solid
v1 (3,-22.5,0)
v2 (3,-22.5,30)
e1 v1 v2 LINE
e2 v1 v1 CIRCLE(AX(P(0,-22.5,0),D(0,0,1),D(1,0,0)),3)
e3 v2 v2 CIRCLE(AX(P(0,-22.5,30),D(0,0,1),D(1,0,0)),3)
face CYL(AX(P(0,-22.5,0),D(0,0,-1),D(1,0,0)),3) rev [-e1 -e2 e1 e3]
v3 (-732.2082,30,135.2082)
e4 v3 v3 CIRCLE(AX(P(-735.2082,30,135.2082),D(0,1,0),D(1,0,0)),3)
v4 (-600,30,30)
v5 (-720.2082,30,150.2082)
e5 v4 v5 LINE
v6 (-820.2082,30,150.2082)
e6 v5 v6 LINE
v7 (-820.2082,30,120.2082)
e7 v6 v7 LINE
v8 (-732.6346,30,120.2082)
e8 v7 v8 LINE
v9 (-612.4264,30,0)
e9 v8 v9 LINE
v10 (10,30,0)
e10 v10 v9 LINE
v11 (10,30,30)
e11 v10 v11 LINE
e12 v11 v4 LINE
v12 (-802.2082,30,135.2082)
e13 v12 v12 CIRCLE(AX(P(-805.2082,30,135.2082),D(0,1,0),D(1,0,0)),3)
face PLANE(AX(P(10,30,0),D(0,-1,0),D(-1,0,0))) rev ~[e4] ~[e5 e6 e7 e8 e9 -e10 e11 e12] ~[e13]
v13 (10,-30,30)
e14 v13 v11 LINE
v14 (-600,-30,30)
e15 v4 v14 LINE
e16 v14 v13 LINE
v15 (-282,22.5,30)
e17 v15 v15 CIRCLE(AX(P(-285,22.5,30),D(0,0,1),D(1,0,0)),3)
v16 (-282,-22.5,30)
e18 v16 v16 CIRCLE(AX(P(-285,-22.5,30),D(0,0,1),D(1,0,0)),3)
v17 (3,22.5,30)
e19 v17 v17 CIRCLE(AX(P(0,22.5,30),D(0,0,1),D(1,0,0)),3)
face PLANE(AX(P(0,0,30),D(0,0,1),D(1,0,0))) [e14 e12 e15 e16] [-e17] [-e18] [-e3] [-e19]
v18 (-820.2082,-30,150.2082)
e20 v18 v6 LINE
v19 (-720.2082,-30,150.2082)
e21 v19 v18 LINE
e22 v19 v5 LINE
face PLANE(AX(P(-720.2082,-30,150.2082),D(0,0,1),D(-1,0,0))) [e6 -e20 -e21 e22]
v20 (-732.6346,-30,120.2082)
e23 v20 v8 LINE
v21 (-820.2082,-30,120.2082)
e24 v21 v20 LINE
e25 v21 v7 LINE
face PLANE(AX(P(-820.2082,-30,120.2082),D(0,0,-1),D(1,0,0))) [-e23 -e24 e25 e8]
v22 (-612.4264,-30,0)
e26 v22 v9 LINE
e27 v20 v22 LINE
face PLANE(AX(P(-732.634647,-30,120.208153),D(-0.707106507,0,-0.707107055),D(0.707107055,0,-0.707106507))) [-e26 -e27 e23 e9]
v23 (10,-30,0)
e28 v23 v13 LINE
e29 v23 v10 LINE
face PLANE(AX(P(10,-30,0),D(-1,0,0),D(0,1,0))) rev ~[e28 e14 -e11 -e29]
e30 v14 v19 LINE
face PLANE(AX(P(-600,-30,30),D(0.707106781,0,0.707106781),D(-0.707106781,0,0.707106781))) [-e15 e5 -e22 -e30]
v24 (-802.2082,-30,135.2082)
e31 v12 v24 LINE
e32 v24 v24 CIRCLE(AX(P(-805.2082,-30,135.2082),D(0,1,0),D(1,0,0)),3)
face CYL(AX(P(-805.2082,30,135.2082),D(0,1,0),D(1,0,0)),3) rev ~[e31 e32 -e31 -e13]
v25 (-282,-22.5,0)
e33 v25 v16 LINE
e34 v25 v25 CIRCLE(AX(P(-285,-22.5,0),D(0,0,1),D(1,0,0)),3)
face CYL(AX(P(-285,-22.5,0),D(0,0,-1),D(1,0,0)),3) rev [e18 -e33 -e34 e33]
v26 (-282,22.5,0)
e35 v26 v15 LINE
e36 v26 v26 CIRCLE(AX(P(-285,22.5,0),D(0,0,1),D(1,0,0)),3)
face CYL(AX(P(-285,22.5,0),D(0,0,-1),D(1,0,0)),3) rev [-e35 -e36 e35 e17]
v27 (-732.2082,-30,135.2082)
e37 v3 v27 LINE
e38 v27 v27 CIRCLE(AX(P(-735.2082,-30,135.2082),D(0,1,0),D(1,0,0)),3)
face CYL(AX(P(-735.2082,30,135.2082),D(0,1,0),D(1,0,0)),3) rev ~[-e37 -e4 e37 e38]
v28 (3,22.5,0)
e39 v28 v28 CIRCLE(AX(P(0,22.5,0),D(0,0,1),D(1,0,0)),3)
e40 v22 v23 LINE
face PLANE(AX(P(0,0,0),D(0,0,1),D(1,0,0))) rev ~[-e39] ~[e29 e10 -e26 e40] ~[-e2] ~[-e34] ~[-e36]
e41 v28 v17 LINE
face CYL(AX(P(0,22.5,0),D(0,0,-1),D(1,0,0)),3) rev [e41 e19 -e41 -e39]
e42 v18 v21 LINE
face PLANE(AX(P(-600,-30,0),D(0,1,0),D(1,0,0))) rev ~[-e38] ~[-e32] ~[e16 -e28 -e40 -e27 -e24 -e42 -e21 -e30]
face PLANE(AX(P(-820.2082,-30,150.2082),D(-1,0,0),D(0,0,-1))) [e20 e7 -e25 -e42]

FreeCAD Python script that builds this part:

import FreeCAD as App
import Part
import Sketcher
from FreeCAD import Vector
Q = App.Units.Quantity


def add_polygon(sketch, points):
    """Adds a closed chain of lines whose ends are joined by coincident constraints."""
    first, n = sketch.GeometryCount, len(points)
    for a, b in zip(points, points[1:] + points[:1]):
        sketch.addGeometry(Part.LineSegment(App.Vector(*a, 0), App.Vector(*b, 0)), False)
    for i in range(n):
        sketch.addConstraint(Sketcher.Constraint("Coincident", first + i, 2, first + (i + 1) % n, 1))

doc = App.newDocument("Part")
body = doc.addObject("PartDesign::Body", "Body")

# Sketch on XY plane
sketch1 = doc.addObject("Sketcher::SketchObject", "Sketch")
body.addObject(sketch1)
sketch1.AttachmentSupport = (doc.XY_Plane, [""])
sketch1.MapMode = "FlatFace"
add_polygon(sketch1, [(10, -30), (10, 30), (-600, 30), (-600, -30)])  # lines 0-3
sketch1.addGeometry(Part.Circle(Vector(-285, -22.5, 0), Vector(0, 0, 1), 3), False)  # 4
sketch1.addGeometry(Part.Circle(Vector(0, -22.5, 0), Vector(0, 0, 1), 3), False)  # 5
sketch1.addGeometry(Part.Circle(Vector(-285, 22.5, 0), Vector(0, 0, 1), 3), False)  # 6
sketch1.addGeometry(Part.Circle(Vector(0, 22.5, 0), Vector(0, 0, 1), 3), False)  # 7
sketch1.addConstraint(Sketcher.Constraint("Vertical", 0))
sketch1.addConstraint(Sketcher.Constraint("Horizontal", 1))
sketch1.addConstraint(Sketcher.Constraint("Vertical", 2))
sketch1.addConstraint(Sketcher.Constraint("Horizontal", 3))
sketch1.addConstraint(Sketcher.Constraint("Equal", 4, 5))
sketch1.addConstraint(Sketcher.Constraint("Equal", 5, 6))
sketch1.addConstraint(Sketcher.Constraint("Equal", 6, 7))
sketch1.addConstraint(Sketcher.Constraint("Symmetric", 5, 3, 7, 3, -1, 1))
sketch1.addConstraint(Sketcher.Constraint("Symmetric", 4, 3, 6, 3, -1))
sketch1.addConstraint(Sketcher.Constraint("PointOnObject", 5, 3, -2))
sketch1.addConstraint(Sketcher.Constraint("Horizontal", 4, 3, 5, 3))
sketch1.addConstraint(Sketcher.Constraint("Diameter", 4, 6.0))
sketch1.addConstraint(Sketcher.Constraint("DistanceX", 1, 2, 1, 1, 610.0))
sketch1.addConstraint(Sketcher.Constraint("DistanceY", 0, 1, 0, 2, 60.0))
sketch1.addConstraint(Sketcher.Constraint("DistanceX", 4, 3, -1, 1, 285.0))
sketch1.addConstraint(Sketcher.Constraint("DistanceX", -1, 1, 0, 2, 10.0))
sketch1.addConstraint(Sketcher.Constraint("DistanceY", -1, 1, 0, 2, 30.0))
sketch1.addConstraint(Sketcher.Constraint("DistanceY", 4, 3, 6, 3, 45.0))
pad1 = doc.addObject("PartDesign::Pad", "Pad")
body.addObject(pad1)
pad1.Profile = sketch1
pad1.Length = 30

# Sketch on XZ plane
sketch2 = doc.addObject("Sketcher::SketchObject", "Sketch001")
body.addObject(sketch2)
sketch2.AttachmentSupport = (doc.XZ_Plane, [""])
sketch2.MapMode = "FlatFace"
sketch2.AttachmentOffset = App.Placement(Vector(0, 0, 30), App.Rotation())
add_polygon(sketch2, [(-600, 0), (-600, 30), (-720, 150), (-820, 150), (-820, 120), (-733, 120), (-612, 0)])  # lines 0-6
sketch2.addConstraint(Sketcher.Constraint("Vertical", 0))
sketch2.addConstraint(Sketcher.Constraint("Horizontal", 2))
sketch2.addConstraint(Sketcher.Constraint("Vertical", 3))
sketch2.addConstraint(Sketcher.Constraint("Horizontal", 4))
sketch2.addConstraint(Sketcher.Constraint("Horizontal", 6))
sketch2.addConstraint(Sketcher.Constraint("PointOnObject", 5, 2, -1))
sketch2.addConstraint(Sketcher.Constraint("Parallel", 1, 5))
sketch2.addConstraint(Sketcher.Constraint("Equal", 0, 3))
sketch2.addConstraint(Sketcher.Constraint("DistanceX", 2, 2, 2, 1, 100.0))
sketch2.addConstraint(Sketcher.Constraint("DistanceY", 0, 1, 0, 2, 30.0))
sketch2.addConstraint(Sketcher.Constraint("Angle", 1, Q("135 deg")))
sketch2.addConstraint(Sketcher.Constraint("Distance", 1, 170.0))
sketch2.addConstraint(Sketcher.Constraint("DistanceX", 0, 2, -1, 1, 600.0))
sketch2.addConstraint(Sketcher.Constraint("DistanceX", 4, 1, 4, 2, 87.5736))
pad2 = doc.addObject("PartDesign::Pad", "Pad001")
body.addObject(pad2)
pad2.Profile = sketch2
pad2.Length = 60
pad2.Reversed = True

# Sketch on XZ plane
sketch3 = doc.addObject("Sketcher::SketchObject", "Sketch002")
body.addObject(sketch3)
sketch3.AttachmentSupport = (doc.XZ_Plane, [""])
sketch3.MapMode = "FlatFace"
sketch3.AttachmentOffset = App.Placement(Vector(0, 0, -30), App.Rotation())
sketch3.addGeometry(Part.Circle(Vector(-805.2, 135.2, 0), Vector(0, 0, 1), 3), False)
sketch3.addGeometry(Part.Circle(Vector(-735.2, 135.2, 0), Vector(0, 0, 1), 3), False)
sketch3.addConstraint(Sketcher.Constraint("Equal", 0, 1))
sketch3.addConstraint(Sketcher.Constraint("Horizontal", 0, 3, 1, 3))
sketch3.addConstraint(Sketcher.Constraint("Diameter", 0, 6.0))
sketch3.addConstraint(Sketcher.Constraint("DistanceX", 0, 3, 1, 3, 70.0))
sketch3.addConstraint(Sketcher.Constraint("DistanceX", 0, 3, -1, 1, 805.2082))
sketch3.addConstraint(Sketcher.Constraint("DistanceY", -1, 1, 0, 3, 135.2082))
pocket1 = doc.addObject("PartDesign::Pocket", "Pocket")
body.addObject(pocket1)
pocket1.Profile = sketch3
pocket1.Type = "ThroughAll"
pocket1.Midplane = True

doc.recompute()
